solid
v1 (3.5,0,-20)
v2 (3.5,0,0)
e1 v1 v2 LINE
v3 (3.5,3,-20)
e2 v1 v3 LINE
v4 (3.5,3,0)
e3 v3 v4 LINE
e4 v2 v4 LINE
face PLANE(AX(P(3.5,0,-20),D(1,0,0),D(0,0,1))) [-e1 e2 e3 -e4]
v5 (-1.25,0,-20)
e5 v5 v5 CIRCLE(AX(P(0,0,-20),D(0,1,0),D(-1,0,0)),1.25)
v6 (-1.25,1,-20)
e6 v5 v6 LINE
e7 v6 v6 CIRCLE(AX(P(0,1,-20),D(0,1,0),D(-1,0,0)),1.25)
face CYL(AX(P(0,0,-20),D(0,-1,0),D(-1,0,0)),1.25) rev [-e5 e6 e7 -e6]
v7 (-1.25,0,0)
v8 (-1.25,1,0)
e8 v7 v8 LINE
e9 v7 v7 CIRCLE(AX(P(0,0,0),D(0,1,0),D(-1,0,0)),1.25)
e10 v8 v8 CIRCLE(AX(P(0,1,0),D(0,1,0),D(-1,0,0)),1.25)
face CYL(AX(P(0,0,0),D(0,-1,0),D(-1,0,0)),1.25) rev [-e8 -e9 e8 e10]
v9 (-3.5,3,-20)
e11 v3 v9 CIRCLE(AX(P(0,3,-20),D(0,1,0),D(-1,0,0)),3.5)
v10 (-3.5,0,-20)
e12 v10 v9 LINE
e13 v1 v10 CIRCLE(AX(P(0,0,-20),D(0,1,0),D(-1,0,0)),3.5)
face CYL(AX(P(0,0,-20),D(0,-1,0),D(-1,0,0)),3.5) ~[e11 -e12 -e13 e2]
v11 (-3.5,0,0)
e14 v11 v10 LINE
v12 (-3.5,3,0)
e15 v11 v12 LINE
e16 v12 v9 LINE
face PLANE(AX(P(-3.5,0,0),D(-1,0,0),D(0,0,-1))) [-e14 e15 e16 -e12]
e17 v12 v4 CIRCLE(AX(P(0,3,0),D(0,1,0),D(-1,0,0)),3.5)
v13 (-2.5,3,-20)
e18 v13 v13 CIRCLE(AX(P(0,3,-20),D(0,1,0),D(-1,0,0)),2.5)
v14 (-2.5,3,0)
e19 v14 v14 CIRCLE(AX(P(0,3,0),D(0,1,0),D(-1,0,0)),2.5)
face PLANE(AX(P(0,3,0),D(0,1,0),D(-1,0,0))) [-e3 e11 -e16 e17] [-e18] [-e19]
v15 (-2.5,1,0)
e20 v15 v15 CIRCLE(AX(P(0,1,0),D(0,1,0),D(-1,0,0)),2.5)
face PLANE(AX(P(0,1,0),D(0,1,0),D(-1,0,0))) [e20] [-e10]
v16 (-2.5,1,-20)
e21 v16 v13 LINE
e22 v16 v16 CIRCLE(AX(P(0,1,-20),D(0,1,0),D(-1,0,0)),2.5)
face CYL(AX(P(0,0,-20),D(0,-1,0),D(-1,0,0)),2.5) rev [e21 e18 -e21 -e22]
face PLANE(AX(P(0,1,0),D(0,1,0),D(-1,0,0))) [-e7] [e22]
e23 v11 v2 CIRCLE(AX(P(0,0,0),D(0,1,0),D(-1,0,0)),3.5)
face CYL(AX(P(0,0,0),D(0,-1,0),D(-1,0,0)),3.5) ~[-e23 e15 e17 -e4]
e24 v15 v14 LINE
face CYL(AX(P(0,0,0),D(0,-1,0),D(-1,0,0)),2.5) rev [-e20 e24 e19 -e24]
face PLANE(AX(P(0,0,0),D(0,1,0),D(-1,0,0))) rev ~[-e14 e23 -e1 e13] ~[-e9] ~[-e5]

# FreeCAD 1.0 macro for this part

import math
import FreeCAD as App
import Part
import Sketcher
Q = App.Units.Quantity

doc = App.newDocument("Part")
params = doc.addObject("Spreadsheet::Sheet", "Params")
for row, (alias, value) in enumerate([
    ("sketch1_diameter", "5 mm"),
    ("sketch1_radius", "3.5 mm"),
    ("sketch1_height", "20 mm"),
    ("pad1_length", "3 mm"),
    ("sketch2_diameter", "5 mm"),
    ("sketch2_diameter2", "2.5 mm"),
    ("pad2_length", "1 mm"),
], start=1):
    params.set(f"A{row}", alias)
    params.set(f"B{row}", "=" + value)
    params.setAlias(f"B{row}", alias)

body = doc.addObject("PartDesign::Body", "Body")

sketch1 = doc.addObject("Sketcher::SketchObject", "Sketch")
body.addObject(sketch1)
sketch1.AttachmentSupport = (doc.XZ_Plane, [""])
sketch1.MapMode = "FlatFace"
sketch1.addGeometry([
    Part.ArcOfCircle(Part.Circle(App.Vector(0, 0, 0), App.Vector(0, 0, 1), 3.5), math.radians(0), math.radians(180)),
    Part.LineSegment(App.Vector(3.5, 0, 0), App.Vector(3.5, -20, 0)),
    Part.ArcOfCircle(Part.Circle(App.Vector(0, -20, 0), App.Vector(0, 0, 1), 3.5), math.radians(180), math.radians(360)),
    Part.LineSegment(App.Vector(-3.5, -20, 0), App.Vector(-3.5, 0, 0)),
    Part.Circle(App.Vector(0, 0, 0), App.Vector(0, 0, 1), 2.5),
    Part.Circle(App.Vector(0, -20, 0), App.Vector(0, 0, 1), 2.5),
], False)
sketch1.addConstraint([
    Sketcher.Constraint("Tangent", 0, 1, 1, 1),
    Sketcher.Constraint("Tangent", 1, 2, 2, 2),
    Sketcher.Constraint("Tangent", 2, 1, 3, 1),
    Sketcher.Constraint("Tangent", 3, 2, 0, 2),
    Sketcher.Constraint("Vertical", 1),
    Sketcher.Constraint("Vertical", 3),
    Sketcher.Constraint("Coincident", 0, 3, -1, 1),
    Sketcher.Constraint("Coincident", 4, 3, -1, 1),
    Sketcher.Constraint("Coincident", 5, 3, 2, 3),
    Sketcher.Constraint("Equal", 4, 5),
    Sketcher.Constraint("Diameter", 4, Q("5 mm")),
    Sketcher.Constraint("Radius", 0, Q("3.5 mm")),
    Sketcher.Constraint("DistanceY", 1, 2, 1, 1, Q("20 mm")),
])
sketch1.setExpression("Constraints[10]", "Params.sketch1_diameter")
sketch1.setExpression("Constraints[11]", "Params.sketch1_radius")
sketch1.setExpression("Constraints[12]", "Params.sketch1_height")
pad1 = doc.addObject("PartDesign::Pad", "Pad")
body.addObject(pad1)
pad1.Profile = sketch1
pad1.setExpression("Length", "Params.pad1_length")
pad1.Reversed = True

sketch2 = doc.addObject("Sketcher::SketchObject", "Sketch001")
body.addObject(sketch2)
sketch2.AttachmentSupport = (doc.XZ_Plane, [""])
sketch2.MapMode = "FlatFace"
sketch2.addGeometry([
    Part.Circle(App.Vector(0, -20, 0), App.Vector(0, 0, 1), 2.5),
    Part.Circle(App.Vector(0, -20, 0), App.Vector(0, 0, 1), 1.2),
    Part.Circle(App.Vector(0, 0, 0), App.Vector(0, 0, 1), 2.5),
    Part.Circle(App.Vector(0, 0, 0), App.Vector(0, 0, 1), 1.2),
], False)
sketch2.addConstraint([
    Sketcher.Constraint("Coincident", 2, 3, -1, 1),
    Sketcher.Constraint("Coincident", 3, 3, -1, 1),
    Sketcher.Constraint("Coincident", 1, 3, 0, 3),
    Sketcher.Constraint("Equal", 0, 2),
    Sketcher.Constraint("Equal", 1, 3),
    Sketcher.Constraint("PointOnObject", 0, 3, -2),
    Sketcher.Constraint("Diameter", 0, Q("5 mm")),
    Sketcher.Constraint("Diameter", 1, Q("2.5 mm")),
    Sketcher.Constraint("DistanceY", 0, 3, -1, 1, Q("20 mm")),
])
sketch2.setExpression("Constraints[6]", "Params.sketch2_diameter")
sketch2.setExpression("Constraints[7]", "Params.sketch2_diameter2")
pad2 = doc.addObject("PartDesign::Pad", "Pad001")
body.addObject(pad2)
pad2.Profile = sketch2
pad2.setExpression("Length", "Params.pad2_length")
pad2.Reversed = True

doc.recompute()
